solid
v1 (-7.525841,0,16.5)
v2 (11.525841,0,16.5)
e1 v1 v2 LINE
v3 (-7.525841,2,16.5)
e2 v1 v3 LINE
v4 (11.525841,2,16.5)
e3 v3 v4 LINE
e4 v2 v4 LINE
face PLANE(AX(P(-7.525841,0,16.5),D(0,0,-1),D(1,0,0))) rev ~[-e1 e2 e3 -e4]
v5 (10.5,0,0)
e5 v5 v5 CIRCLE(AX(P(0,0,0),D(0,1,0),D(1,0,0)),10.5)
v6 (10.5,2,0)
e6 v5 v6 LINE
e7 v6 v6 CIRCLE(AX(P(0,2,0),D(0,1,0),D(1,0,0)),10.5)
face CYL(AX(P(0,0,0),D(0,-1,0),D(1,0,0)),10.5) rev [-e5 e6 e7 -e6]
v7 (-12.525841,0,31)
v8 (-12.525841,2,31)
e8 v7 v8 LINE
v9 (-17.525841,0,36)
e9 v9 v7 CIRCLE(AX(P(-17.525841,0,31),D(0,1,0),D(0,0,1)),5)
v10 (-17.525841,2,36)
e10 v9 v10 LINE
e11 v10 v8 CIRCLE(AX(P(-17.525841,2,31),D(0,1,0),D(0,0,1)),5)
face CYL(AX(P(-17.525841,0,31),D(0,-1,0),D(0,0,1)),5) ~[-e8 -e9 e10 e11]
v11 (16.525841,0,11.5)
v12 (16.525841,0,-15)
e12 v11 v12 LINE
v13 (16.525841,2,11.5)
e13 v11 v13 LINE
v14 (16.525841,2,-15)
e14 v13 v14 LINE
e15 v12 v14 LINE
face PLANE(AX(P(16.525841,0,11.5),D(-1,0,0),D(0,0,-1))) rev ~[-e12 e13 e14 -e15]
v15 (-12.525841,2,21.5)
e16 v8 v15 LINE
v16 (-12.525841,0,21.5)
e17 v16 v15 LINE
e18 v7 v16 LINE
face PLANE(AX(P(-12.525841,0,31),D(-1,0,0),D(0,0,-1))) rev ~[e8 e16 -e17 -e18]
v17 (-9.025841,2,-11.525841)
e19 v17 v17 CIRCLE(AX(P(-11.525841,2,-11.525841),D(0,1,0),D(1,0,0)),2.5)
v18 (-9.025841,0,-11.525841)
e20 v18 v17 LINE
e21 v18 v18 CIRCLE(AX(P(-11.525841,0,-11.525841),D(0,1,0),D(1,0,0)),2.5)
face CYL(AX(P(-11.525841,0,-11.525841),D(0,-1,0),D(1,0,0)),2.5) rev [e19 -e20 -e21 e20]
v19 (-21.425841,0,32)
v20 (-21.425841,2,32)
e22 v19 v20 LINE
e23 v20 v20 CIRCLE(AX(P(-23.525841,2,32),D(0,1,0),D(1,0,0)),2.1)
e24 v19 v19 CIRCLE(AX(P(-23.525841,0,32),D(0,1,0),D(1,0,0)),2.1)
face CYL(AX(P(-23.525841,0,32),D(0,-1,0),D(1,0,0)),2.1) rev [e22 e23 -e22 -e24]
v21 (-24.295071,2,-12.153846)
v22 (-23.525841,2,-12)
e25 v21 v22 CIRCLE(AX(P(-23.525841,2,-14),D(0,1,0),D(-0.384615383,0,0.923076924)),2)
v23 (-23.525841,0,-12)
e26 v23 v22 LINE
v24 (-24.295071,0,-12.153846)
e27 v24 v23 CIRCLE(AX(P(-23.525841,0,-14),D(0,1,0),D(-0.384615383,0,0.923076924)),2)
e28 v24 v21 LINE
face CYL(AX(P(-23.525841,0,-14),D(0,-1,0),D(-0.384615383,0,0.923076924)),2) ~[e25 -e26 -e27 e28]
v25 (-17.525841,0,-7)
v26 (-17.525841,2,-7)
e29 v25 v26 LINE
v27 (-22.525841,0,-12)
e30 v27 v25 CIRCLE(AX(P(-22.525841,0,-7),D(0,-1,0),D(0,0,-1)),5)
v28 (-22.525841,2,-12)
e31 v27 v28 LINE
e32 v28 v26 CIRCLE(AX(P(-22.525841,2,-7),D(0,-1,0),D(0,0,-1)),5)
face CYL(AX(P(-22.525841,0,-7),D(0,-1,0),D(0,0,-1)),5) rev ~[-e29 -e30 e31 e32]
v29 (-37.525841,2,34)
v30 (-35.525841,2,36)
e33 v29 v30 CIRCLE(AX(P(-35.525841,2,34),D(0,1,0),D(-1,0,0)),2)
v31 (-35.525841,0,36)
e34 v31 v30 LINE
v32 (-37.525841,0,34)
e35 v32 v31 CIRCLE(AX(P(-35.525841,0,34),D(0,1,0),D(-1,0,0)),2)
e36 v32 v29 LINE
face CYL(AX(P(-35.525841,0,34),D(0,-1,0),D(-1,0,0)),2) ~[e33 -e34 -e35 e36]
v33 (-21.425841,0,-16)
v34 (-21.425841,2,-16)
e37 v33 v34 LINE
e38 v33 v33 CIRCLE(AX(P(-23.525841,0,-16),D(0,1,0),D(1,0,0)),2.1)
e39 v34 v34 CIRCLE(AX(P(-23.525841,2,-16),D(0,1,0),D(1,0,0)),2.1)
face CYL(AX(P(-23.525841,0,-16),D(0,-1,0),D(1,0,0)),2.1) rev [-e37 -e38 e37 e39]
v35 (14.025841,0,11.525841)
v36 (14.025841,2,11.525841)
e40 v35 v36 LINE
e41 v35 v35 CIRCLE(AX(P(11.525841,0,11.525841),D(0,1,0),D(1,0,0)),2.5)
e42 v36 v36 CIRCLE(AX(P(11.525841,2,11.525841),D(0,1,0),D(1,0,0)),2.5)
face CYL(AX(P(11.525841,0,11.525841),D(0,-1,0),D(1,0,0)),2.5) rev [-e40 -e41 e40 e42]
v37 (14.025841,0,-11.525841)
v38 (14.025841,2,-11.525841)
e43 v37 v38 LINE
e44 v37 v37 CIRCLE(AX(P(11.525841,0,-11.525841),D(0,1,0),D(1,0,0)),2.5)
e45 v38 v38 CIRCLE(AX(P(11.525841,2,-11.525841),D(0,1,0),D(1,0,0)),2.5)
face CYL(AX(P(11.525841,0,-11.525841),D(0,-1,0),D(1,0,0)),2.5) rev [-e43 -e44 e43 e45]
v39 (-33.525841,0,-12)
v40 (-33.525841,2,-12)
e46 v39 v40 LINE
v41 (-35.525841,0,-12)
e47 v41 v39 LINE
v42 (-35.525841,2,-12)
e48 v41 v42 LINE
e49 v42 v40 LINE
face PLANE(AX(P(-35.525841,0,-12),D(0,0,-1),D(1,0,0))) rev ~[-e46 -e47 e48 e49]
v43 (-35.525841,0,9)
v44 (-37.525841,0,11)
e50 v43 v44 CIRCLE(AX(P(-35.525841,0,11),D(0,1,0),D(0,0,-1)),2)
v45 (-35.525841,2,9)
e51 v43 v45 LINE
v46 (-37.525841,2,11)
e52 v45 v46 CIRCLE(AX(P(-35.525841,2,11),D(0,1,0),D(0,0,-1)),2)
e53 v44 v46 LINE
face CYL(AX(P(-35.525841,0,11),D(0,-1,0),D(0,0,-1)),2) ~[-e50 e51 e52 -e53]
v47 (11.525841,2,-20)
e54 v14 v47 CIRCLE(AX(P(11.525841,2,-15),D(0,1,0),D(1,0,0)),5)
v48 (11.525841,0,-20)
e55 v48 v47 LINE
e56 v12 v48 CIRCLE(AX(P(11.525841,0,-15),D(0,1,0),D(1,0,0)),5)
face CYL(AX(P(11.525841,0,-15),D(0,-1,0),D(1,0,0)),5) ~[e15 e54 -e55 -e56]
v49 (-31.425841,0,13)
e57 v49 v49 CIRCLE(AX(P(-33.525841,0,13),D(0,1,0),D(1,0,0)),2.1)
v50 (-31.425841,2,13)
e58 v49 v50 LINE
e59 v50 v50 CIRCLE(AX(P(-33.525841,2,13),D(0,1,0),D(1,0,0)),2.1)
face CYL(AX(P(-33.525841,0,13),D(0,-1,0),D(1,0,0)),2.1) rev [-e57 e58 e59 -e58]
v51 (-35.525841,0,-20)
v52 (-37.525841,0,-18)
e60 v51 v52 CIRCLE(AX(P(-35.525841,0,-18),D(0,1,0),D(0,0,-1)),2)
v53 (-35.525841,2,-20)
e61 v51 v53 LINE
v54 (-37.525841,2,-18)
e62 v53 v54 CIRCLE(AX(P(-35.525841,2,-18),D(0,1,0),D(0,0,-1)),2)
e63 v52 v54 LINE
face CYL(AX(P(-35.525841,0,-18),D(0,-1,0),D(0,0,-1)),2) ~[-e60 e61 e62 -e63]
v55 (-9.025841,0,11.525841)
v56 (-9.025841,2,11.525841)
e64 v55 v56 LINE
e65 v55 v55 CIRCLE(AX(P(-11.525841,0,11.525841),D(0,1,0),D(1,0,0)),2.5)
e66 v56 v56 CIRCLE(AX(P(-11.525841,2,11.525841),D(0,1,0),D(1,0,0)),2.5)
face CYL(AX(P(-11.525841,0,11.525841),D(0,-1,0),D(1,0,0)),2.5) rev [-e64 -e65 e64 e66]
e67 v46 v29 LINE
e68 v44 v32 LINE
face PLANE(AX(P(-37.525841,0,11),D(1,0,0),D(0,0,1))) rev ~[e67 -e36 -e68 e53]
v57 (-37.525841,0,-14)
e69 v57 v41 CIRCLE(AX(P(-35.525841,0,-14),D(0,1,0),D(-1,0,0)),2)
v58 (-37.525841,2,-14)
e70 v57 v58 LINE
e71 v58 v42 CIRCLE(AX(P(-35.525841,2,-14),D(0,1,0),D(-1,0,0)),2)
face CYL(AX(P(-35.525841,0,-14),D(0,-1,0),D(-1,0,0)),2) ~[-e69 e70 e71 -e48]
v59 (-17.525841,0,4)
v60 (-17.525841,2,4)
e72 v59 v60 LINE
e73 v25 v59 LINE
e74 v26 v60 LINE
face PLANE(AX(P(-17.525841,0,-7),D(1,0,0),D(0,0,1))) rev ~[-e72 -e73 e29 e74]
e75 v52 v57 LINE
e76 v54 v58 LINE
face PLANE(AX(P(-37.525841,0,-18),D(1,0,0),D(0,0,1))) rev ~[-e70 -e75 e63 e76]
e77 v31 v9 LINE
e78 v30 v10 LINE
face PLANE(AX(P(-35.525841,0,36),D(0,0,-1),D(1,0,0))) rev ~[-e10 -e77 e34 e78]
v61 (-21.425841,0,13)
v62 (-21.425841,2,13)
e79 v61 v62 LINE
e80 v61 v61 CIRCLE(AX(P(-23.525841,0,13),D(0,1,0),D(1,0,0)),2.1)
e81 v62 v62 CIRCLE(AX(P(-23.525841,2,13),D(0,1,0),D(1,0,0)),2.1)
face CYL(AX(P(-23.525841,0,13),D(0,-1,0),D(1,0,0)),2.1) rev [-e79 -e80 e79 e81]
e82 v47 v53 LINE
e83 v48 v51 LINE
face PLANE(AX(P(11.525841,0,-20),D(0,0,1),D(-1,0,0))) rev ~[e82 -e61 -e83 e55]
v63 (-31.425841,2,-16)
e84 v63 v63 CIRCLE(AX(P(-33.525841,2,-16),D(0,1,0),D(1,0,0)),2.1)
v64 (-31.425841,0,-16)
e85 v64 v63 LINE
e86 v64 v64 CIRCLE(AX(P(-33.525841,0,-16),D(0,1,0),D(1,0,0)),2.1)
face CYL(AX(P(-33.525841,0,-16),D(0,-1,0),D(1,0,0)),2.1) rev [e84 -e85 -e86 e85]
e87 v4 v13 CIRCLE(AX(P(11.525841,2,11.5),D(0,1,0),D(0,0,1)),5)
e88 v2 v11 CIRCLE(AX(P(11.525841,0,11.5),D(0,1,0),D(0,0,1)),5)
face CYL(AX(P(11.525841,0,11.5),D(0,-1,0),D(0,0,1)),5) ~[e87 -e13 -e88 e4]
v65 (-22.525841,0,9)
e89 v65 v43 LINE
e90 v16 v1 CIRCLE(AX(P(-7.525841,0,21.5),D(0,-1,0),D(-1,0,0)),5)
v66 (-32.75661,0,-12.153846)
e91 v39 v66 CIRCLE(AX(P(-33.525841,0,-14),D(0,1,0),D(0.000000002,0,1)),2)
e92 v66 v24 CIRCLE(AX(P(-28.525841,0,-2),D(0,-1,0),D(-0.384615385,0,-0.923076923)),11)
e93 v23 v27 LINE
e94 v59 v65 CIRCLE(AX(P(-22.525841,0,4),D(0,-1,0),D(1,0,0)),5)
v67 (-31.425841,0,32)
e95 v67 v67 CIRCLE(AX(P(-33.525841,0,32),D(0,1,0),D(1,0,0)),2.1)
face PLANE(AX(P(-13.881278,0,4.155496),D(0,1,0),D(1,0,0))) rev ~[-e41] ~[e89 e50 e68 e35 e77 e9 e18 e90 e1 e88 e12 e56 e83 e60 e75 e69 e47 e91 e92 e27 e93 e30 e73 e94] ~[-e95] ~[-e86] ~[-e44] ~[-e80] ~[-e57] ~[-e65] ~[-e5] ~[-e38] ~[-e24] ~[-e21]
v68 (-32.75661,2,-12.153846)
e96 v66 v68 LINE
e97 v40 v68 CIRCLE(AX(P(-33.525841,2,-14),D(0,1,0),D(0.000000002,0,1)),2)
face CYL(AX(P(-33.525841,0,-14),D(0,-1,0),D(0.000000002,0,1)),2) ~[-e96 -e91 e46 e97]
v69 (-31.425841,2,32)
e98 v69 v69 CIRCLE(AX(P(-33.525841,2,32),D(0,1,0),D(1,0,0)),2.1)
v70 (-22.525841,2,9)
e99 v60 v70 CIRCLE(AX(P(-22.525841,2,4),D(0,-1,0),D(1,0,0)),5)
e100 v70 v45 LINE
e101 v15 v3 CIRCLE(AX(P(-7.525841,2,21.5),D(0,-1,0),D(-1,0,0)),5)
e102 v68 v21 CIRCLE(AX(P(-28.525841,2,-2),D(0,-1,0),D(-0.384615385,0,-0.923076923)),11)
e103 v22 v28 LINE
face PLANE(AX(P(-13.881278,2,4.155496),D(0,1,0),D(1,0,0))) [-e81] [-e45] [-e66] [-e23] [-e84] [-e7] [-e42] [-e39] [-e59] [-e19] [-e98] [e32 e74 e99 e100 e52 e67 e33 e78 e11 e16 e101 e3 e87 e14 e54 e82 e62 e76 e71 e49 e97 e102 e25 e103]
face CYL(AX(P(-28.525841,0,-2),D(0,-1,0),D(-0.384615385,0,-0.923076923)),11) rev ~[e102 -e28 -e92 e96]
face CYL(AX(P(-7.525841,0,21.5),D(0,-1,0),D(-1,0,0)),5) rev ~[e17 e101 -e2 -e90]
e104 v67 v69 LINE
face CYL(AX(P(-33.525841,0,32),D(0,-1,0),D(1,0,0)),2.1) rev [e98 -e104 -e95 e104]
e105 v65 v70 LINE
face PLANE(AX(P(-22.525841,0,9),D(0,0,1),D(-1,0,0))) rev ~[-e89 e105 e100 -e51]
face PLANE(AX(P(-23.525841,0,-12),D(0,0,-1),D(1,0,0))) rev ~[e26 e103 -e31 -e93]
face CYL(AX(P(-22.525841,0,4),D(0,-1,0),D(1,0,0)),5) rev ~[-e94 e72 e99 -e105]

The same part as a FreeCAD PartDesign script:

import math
import FreeCAD as App
import Part
import Sketcher

V = App.Vector

doc = App.newDocument("Part")
body = doc.addObject("PartDesign::Body", "Body")

# Sketch on XZ plane
sketch1 = body.newObject("Sketcher::SketchObject", "Sketch")
sketch1.AttachmentSupport = (doc.getObject("XZ_Plane"), [""])
sketch1.MapMode = "FlatFace"
sketch1.addGeometry([
    Part.LineSegment(V(-35.5, -12, 0), V(-33.5, -12, 0)),  # 0
    Part.ArcOfCircle(Part.Circle(V(-33.5, -14, 0), V(0, 0, 1), 2), math.radians(67), math.radians(90)),  # 1
    Part.ArcOfCircle(Part.Circle(V(-28.5, -2, 0), V(0, 0, 1), 11), math.radians(-113), math.radians(-67)),  # 2
    Part.ArcOfCircle(Part.Circle(V(-23.5, -14, 0), V(0, 0, 1), 2), math.radians(90), math.radians(113)),  # 3
    Part.LineSegment(V(-23.5, -12, 0), V(-22.5, -12, 0)),  # 4
    Part.ArcOfCircle(Part.Circle(V(-22.5, -7, 0), V(0, 0, 1), 5), math.radians(-90), math.radians(0)),  # 5
    Part.LineSegment(V(-17.5, -7, 0), V(-17.5, 4, 0)),  # 6
    Part.ArcOfCircle(Part.Circle(V(-22.5, 4, 0), V(0, 0, 1), 5), math.radians(0), math.radians(90)),  # 7
    Part.LineSegment(V(-22.5, 9, 0), V(-35.5, 9, 0)),  # 8
    Part.ArcOfCircle(Part.Circle(V(-35.5, 11, 0), V(0, 0, 1), 2), math.radians(180), math.radians(270)),  # 9
    Part.LineSegment(V(-37.5, 11, 0), V(-37.5, 34, 0)),  # 10
    Part.ArcOfCircle(Part.Circle(V(-35.5, 34, 0), V(0, 0, 1), 2), math.radians(90), math.radians(180)),  # 11
    Part.LineSegment(V(-35.5, 36, 0), V(-17.5, 36, 0)),  # 12
    Part.ArcOfCircle(Part.Circle(V(-17.5, 31, 0), V(0, 0, 1), 5), math.radians(0), math.radians(90)),  # 13
    Part.LineSegment(V(-12.5, 31, 0), V(-12.5, 21.5, 0)),  # 14
    Part.ArcOfCircle(Part.Circle(V(-7.5, 21.5, 0), V(0, 0, 1), 5), math.radians(180), math.radians(270)),  # 15
    Part.LineSegment(V(-7.5, 16.5, 0), V(11.5, 16.5, 0)),  # 16
    Part.ArcOfCircle(Part.Circle(V(11.5, 11.5, 0), V(0, 0, 1), 5), math.radians(0), math.radians(90)),  # 17
    Part.LineSegment(V(16.5, 11.5, 0), V(16.5, -15, 0)),  # 18
    Part.ArcOfCircle(Part.Circle(V(11.5, -15, 0), V(0, 0, 1), 5), math.radians(-90), math.radians(0)),  # 19
    Part.LineSegment(V(11.5, -20, 0), V(-35.5, -20, 0)),  # 20
    Part.ArcOfCircle(Part.Circle(V(-35.5, -18, 0), V(0, 0, 1), 2), math.radians(180), math.radians(270)),  # 21
    Part.LineSegment(V(-37.5, -18, 0), V(-37.5, -14, 0)),  # 22
    Part.ArcOfCircle(Part.Circle(V(-35.5, -14, 0), V(0, 0, 1), 2), math.radians(90), math.radians(180)),  # 23
    Part.Circle(V(-33.5, 32, 0), V(0, 0, 1), 2.1),  # 24
    Part.Circle(V(-23.5, 32, 0), V(0, 0, 1), 2.1),  # 25
    Part.Circle(V(-33.5, 13, 0), V(0, 0, 1), 2.1),  # 26
    Part.Circle(V(-23.5, 13, 0), V(0, 0, 1), 2.1),  # 27
    Part.Circle(V(-11.5, 11.5, 0), V(0, 0, 1), 2.5),  # 28
    Part.Circle(V(11.5, 11.5, 0), V(0, 0, 1), 2.5),  # 29
    Part.Circle(V(-33.5, -16, 0), V(0, 0, 1), 2.1),  # 30
    Part.Circle(V(-23.5, -16, 0), V(0, 0, 1), 2.1),  # 31
    Part.Circle(V(-11.5, -11.5, 0), V(0, 0, 1), 2.5),  # 32
    Part.Circle(V(0, 0, 0), V(0, 0, 1), 10.5),  # 33
    Part.Circle(V(11.5, -11.5, 0), V(0, 0, 1), 2.5),  # 34
], False)
sketch1.addConstraint([
    Sketcher.Constraint("Tangent", 0, 2, 1, 2),
    Sketcher.Constraint("Tangent", 1, 1, 2, 1),
    Sketcher.Constraint("Tangent", 2, 2, 3, 2),
    Sketcher.Constraint("Tangent", 3, 1, 4, 1),
    Sketcher.Constraint("Tangent", 4, 2, 5, 1),
    Sketcher.Constraint("Tangent", 5, 2, 6, 1),
    Sketcher.Constraint("Tangent", 6, 2, 7, 1),
    Sketcher.Constraint("Tangent", 7, 2, 8, 1),
    Sketcher.Constraint("Tangent", 8, 2, 9, 2),
    Sketcher.Constraint("Tangent", 9, 1, 10, 1),
    Sketcher.Constraint("Tangent", 10, 2, 11, 2),
    Sketcher.Constraint("Tangent", 11, 1, 12, 1),
    Sketcher.Constraint("Tangent", 12, 2, 13, 2),
    Sketcher.Constraint("Tangent", 13, 1, 14, 1),
    Sketcher.Constraint("Tangent", 14, 2, 15, 1),
    Sketcher.Constraint("Tangent", 15, 2, 16, 1),
    Sketcher.Constraint("Tangent", 16, 2, 17, 2),
    Sketcher.Constraint("Tangent", 17, 1, 18, 1),
    Sketcher.Constraint("Tangent", 18, 2, 19, 2),
    Sketcher.Constraint("Tangent", 19, 1, 20, 1),
    Sketcher.Constraint("Tangent", 20, 2, 21, 2),
    Sketcher.Constraint("Tangent", 21, 1, 22, 1),
    Sketcher.Constraint("Tangent", 22, 2, 23, 2),
    Sketcher.Constraint("Tangent", 23, 1, 0, 1),
    Sketcher.Constraint("Horizontal", 0),
    Sketcher.Constraint("Horizontal", 4),
    Sketcher.Constraint("Vertical", 6),
    Sketcher.Constraint("Horizontal", 8),
    Sketcher.Constraint("Vertical", 10),
    Sketcher.Constraint("Horizontal", 12),
    Sketcher.Constraint("Vertical", 14),
    Sketcher.Constraint("Horizontal", 16),
    Sketcher.Constraint("Vertical", 18),
    Sketcher.Constraint("Horizontal", 20),
    Sketcher.Constraint("Vertical", 22),
    Sketcher.Constraint("Coincident", 33, 3, -1, 1),
    Sketcher.Constraint("Equal", 1, 3),
    Sketcher.Constraint("Equal", 5, 7),
    Sketcher.Constraint("Equal", 3, 9),
    Sketcher.Constraint("Equal", 9, 11),
    Sketcher.Constraint("Equal", 7, 13),
    Sketcher.Constraint("Equal", 13, 15),
    Sketcher.Constraint("Equal", 15, 17),
    Sketcher.Constraint("Equal", 17, 19),
    Sketcher.Constraint("Equal", 11, 21),
    Sketcher.Constraint("Equal", 21, 23),
    Sketcher.Constraint("Equal", 24, 25),
    Sketcher.Constraint("Equal", 25, 26),
    Sketcher.Constraint("Equal", 26, 27),
    Sketcher.Constraint("Equal", 28, 29),
    Sketcher.Constraint("Equal", 27, 30),
    Sketcher.Constraint("Equal", 30, 31),
    Sketcher.Constraint("Equal", 29, 32),
    Sketcher.Constraint("Equal", 32, 34),
    Sketcher.Constraint("Symmetric", 29, 3, 32, 3, -1, 1),
    Sketcher.Constraint("Symmetric", 28, 3, 34, 3, -1, 1),
    Sketcher.Constraint("Symmetric", 28, 3, 29, 3, -2),
    Sketcher.Constraint("Horizontal", 1, 3, 3, 3),
    Sketcher.Constraint("Horizontal", 24, 3, 25, 3),
    Sketcher.Constraint("Horizontal", 26, 3, 27, 3),
    Sketcher.Constraint("Horizontal", 30, 3, 31, 3),
    Sketcher.Constraint("Vertical", 11, 3, 21, 3),
    Sketcher.Constraint("Vertical", 1, 3, 24, 3),
    Sketcher.Constraint("Vertical", 3, 3, 25, 3),
    Sketcher.Constraint("Vertical", 24, 3, 26, 3),
    Sketcher.Constraint("Vertical", 25, 3, 27, 3),
    Sketcher.Constraint("Vertical", 19, 3, 29, 3),
    Sketcher.Constraint("Vertical", 26, 3, 30, 3),
    Sketcher.Constraint("Vertical", 27, 3, 31, 3),
    Sketcher.Constraint("Vertical", 13, 3, 5, 2),
    Sketcher.Constraint("Diameter", 28, 5.0),
    Sketcher.Constraint("Diameter", 33, 21.0),
    Sketcher.Constraint("Radius", 1, 2.0),
    Sketcher.Constraint("Radius", 2, 11.0),
    Sketcher.Constraint("Radius", 5, 5.0),
    Sketcher.Constraint("Diameter", 24, 4.2),
    Sketcher.Constraint("DistanceX", 0, 1, 0, 2, 2.0),
    Sketcher.Constraint("DistanceX", 4, 1, 4, 2, 1.0),
    Sketcher.Constraint("DistanceX", 8, 2, 8, 1, 13.0),
    Sketcher.Constraint("DistanceY", 6, 1, 6, 2, 11.0),
    Sketcher.Constraint("DistanceY", 10, 1, 10, 2, 23.0),
    Sketcher.Constraint("DistanceY", 22, 1, 22, 2, 4.0),
    Sketcher.Constraint("DistanceY", 14, 2, 14, 1, 9.5),
    Sketcher.Constraint("DistanceY", 1, 3, -1, 1, 14.0),
    Sketcher.Constraint("DistanceY", -1, 1, 24, 3, 32.0),
    Sketcher.Constraint("DistanceY", -1, 1, 26, 3, 13.0),
    Sketcher.Constraint("DistanceY", 30, 3, -1, 1, 16.0),
    Sketcher.Constraint("DistanceX", 28, 3, 15, 3, 4.0),
    Sketcher.Constraint("DistanceX", 16, 1, 16, 2, 19.051681),
    Sketcher.Constraint("DistanceY", -1, 1, 28, 3, 11.525841),
])
pad1 = body.newObject("PartDesign::Pad", "Pad")
pad1.Profile = sketch1
pad1.Length = 2
pad1.Reversed = True

doc.recompute()
